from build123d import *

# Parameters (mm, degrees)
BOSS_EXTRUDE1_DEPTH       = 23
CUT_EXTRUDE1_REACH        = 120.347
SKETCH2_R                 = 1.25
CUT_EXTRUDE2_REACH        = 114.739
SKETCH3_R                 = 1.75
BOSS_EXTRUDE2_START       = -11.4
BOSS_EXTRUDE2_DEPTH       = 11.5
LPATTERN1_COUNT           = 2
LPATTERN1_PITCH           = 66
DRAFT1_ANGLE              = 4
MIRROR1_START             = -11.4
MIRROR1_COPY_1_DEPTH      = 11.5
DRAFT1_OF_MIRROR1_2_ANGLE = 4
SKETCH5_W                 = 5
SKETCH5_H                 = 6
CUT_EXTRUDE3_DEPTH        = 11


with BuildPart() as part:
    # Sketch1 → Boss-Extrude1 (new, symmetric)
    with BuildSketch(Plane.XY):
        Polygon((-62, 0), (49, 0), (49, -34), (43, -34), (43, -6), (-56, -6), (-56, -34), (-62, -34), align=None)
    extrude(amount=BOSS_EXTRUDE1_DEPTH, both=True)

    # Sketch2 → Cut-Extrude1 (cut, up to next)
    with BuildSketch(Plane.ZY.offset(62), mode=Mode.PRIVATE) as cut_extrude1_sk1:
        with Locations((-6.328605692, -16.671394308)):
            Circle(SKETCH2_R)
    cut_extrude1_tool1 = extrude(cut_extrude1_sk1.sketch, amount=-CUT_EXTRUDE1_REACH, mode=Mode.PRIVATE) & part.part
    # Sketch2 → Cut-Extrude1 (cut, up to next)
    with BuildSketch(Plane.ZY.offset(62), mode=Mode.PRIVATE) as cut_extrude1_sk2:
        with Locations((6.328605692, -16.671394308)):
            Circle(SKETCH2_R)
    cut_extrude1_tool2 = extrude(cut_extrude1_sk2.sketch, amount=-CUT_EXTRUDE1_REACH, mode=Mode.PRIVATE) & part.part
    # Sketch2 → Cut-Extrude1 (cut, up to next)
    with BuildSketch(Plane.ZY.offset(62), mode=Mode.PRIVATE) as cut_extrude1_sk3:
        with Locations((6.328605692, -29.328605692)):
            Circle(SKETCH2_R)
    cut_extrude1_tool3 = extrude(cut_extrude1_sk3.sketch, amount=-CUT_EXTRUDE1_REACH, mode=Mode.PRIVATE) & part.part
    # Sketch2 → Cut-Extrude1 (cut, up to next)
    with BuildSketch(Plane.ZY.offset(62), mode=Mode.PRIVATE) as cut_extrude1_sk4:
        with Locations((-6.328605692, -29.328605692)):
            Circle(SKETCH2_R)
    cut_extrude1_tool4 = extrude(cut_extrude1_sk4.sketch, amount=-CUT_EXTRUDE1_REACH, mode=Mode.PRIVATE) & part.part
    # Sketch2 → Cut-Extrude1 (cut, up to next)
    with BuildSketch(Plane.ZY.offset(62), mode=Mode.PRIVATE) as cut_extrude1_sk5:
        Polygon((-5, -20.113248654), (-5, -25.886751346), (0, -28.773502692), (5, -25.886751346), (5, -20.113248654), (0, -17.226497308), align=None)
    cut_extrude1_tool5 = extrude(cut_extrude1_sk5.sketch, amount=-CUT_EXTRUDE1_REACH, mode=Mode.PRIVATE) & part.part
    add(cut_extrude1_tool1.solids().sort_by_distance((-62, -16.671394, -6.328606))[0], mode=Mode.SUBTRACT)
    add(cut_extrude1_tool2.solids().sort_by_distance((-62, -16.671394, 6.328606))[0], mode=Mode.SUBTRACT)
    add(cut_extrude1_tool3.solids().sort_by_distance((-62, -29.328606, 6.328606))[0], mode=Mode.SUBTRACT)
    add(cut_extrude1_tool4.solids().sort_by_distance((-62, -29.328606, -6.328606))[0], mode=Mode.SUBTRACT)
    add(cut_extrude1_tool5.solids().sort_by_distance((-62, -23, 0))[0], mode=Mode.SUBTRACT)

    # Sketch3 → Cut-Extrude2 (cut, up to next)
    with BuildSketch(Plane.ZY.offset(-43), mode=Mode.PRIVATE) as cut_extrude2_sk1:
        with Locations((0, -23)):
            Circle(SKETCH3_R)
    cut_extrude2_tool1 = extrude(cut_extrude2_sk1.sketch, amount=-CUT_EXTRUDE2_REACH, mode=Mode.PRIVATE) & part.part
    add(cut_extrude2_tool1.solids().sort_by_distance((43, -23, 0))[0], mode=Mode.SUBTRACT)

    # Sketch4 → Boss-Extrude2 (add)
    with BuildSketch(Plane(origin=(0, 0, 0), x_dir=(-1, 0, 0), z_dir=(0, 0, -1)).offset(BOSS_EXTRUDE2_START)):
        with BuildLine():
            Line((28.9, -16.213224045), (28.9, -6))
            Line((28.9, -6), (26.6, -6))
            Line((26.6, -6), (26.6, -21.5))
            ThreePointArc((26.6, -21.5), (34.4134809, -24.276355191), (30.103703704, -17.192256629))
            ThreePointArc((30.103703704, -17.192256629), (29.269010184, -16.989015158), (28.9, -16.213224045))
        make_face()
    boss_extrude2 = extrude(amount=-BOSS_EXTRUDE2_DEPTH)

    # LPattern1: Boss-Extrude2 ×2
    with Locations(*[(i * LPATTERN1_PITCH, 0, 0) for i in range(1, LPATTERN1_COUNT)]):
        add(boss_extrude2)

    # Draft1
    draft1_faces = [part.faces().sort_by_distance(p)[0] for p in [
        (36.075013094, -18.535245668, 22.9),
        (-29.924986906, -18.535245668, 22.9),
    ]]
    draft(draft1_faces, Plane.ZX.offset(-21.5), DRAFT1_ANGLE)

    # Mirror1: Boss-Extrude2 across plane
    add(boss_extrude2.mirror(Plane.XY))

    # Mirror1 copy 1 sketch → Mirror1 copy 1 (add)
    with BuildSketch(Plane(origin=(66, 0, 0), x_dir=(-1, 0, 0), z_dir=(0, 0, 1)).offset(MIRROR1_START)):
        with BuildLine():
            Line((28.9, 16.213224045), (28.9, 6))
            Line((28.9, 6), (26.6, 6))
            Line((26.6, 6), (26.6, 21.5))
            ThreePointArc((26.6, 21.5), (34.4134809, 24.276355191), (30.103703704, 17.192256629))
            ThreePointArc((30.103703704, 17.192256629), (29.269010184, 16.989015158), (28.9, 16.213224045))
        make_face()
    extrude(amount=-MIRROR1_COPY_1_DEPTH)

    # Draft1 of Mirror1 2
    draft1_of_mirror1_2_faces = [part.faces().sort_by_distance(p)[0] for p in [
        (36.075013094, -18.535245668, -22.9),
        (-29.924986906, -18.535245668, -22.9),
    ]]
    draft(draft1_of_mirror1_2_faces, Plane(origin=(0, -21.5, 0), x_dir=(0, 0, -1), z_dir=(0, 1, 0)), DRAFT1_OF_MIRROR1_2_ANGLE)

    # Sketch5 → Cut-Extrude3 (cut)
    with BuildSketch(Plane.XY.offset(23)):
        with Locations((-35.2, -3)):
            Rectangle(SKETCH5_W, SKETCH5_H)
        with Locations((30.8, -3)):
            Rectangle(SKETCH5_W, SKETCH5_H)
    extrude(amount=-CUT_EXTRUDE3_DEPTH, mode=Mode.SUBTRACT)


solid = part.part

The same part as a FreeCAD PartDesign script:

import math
import FreeCAD as App
import Part
import Sketcher
Q = App.Units.Quantity


def faces_at(feature, points):
    """Names of the faces that lie closest to the given points."""
    faces = feature.Shape.Faces
    near = lambda p: min(range(len(faces)), key=lambda i: faces[i].distToShape(Part.Vertex(*p))[0])
    return sorted({f"Face{near(p) + 1}" for p in points})


def add_polygon(sketch, points):
    """Adds a closed chain of lines whose ends are joined by coincident constraints."""
    first, n = sketch.GeometryCount, len(points)
    for a, b in zip(points, points[1:] + points[:1]):
        sketch.addGeometry(Part.LineSegment(App.Vector(*a, 0), App.Vector(*b, 0)), False)
    for i in range(n):
        sketch.addConstraint(Sketcher.Constraint("Coincident", first + i, 2, first + (i + 1) % n, 1))

doc = App.newDocument("Part")
params = doc.addObject("Spreadsheet::Sheet", "Params")
for row, (alias, value) in enumerate([
    ("sketch1_width", "111 mm"),
    ("sketch1_width2", "6 mm"),
    ("sketch1_height", "34 mm"),
    ("sketch1_height2", "28 mm"),
    ("pad1_length", "46 mm"),
    ("sketch2_diameter", "2.5 mm"),
    ("sketch3_diameter", "2.5 mm"),
    ("sketch4_diameter", "2.5 mm"),
    ("sketch5_diameter", "2.5 mm"),
    ("sketch7_diameter", "3.5 mm"),
    ("sketch8_radius", "1 mm"),
    ("sketch8_radius2", "4.4 mm"),
    ("sketch8_width", "2.3 mm"),
    ("sketch8_height", "15.5 mm"),
    ("pad2_length", "11.5 mm"),
    ("linearpattern_pitch", "66 mm"),
    ("draft_angle", "4 deg"),
    ("sketch9_radius", "1 mm"),
    ("sketch9_radius2", "4.4 mm"),
    ("sketch9_width", "2.3 mm"),
    ("sketch9_height", "15.5 mm"),
    ("pad3_length", "11.5 mm"),
    ("draft2_angle", "4 deg"),
    ("sketch10_width", "5 mm"),
    ("sketch10_height", "6 mm"),
    ("pocket7_length", "11 mm"),
], start=1):
    params.set(f"A{row}", alias)
    params.set(f"B{row}", "=" + value)
    params.setAlias(f"B{row}", alias)

body = doc.addObject("PartDesign::Body", "Body")

# Sketch on XY plane
sketch1 = body.newObject("Sketcher::SketchObject", "Sketch")
sketch1.AttachmentSupport = (doc.getObject("XY_Plane"), [""])
sketch1.MapMode = "FlatFace"
add_polygon(sketch1, [(49, 0), (-62, 0), (-62, -34), (-56, -34), (-56, -6), (43, -6), (43, -34), (49, -34)])  # lines 0-7
sketch1.addConstraint([
    Sketcher.Constraint("Horizontal", 0),
    Sketcher.Constraint("Vertical", 1),
    Sketcher.Constraint("Horizontal", 2),
    Sketcher.Constraint("Vertical", 3),
    Sketcher.Constraint("Horizontal", 4),
    Sketcher.Constraint("Vertical", 5),
    Sketcher.Constraint("Horizontal", 6),
    Sketcher.Constraint("Vertical", 7),
    Sketcher.Constraint("PointOnObject", 0, 2, -1),
    Sketcher.Constraint("Horizontal", 2, 2, 5, 2),
    Sketcher.Constraint("Equal", 2, 6),
    Sketcher.Constraint("DistanceX", 0, 2, 0, 1, Q("111 mm")),
    Sketcher.Constraint("DistanceX", 2, 1, 2, 2, Q("6 mm")),
    Sketcher.Constraint("DistanceY", 1, 2, 1, 1, Q("34 mm")),
    Sketcher.Constraint("DistanceY", 3, 1, 3, 2, Q("28 mm")),
    Sketcher.Constraint("DistanceX", 0, 2, -1, 1, Q("62 mm")),
])
sketch1.setExpression("Constraints[19]", "Params.sketch1_width")
sketch1.setExpression("Constraints[20]", "Params.sketch1_width2")
sketch1.setExpression("Constraints[21]", "Params.sketch1_height")
sketch1.setExpression("Constraints[22]", "Params.sketch1_height2")
pad1 = body.newObject("PartDesign::Pad", "Pad")
pad1.Profile = sketch1
pad1.setExpression("Length", "Params.pad1_length")
pad1.Midplane = True

# Sketch on YZ plane
sketch2 = body.newObject("Sketcher::SketchObject", "Sketch001")
sketch2.AttachmentSupport = (doc.getObject("YZ_Plane"), [""])
sketch2.MapMode = "FlatFace"
sketch2.AttachmentOffset = App.Placement(App.Vector(0, 0, -62), App.Rotation())
sketch2.addGeometry(Part.Circle(App.Vector(-16.7, -6.3, 0), App.Vector(0, 0, 1), 1.2), False)
sketch2.addConstraint([
    Sketcher.Constraint("Diameter", 0, Q("2.5 mm")),
    Sketcher.Constraint("DistanceX", 0, 3, -1, 1, Q("16.671394 mm")),
    Sketcher.Constraint("DistanceY", 0, 3, -1, 1, Q("6.328606 mm")),
])
sketch2.setExpression("Constraints[0]", "Params.sketch2_diameter")
pocket1 = body.newObject("PartDesign::Pocket", "Pocket")
pocket1.Profile = sketch2
pocket1.Type = "UpToFirst"
pocket1.Reversed = True

# Sketch on YZ plane
sketch3 = body.newObject("Sketcher::SketchObject", "Sketch002")
sketch3.AttachmentSupport = (doc.getObject("YZ_Plane"), [""])
sketch3.MapMode = "FlatFace"
sketch3.AttachmentOffset = App.Placement(App.Vector(0, 0, -62), App.Rotation())
sketch3.addGeometry(Part.Circle(App.Vector(-16.7, 6.3, 0), App.Vector(0, 0, 1), 1.2), False)
sketch3.addConstraint([
    Sketcher.Constraint("Diameter", 0, Q("2.5 mm")),
    Sketcher.Constraint("DistanceX", 0, 3, -1, 1, Q("16.671394 mm")),
    Sketcher.Constraint("DistanceY", -1, 1, 0, 3, Q("6.328606 mm")),
])
sketch3.setExpression("Constraints[0]", "Params.sketch3_diameter")
pocket2 = body.newObject("PartDesign::Pocket", "Pocket001")
pocket2.Profile = sketch3
pocket2.Type = "UpToFirst"
pocket2.Reversed = True

# Sketch on YZ plane
sketch4 = body.newObject("Sketcher::SketchObject", "Sketch003")
sketch4.AttachmentSupport = (doc.getObject("YZ_Plane"), [""])
sketch4.MapMode = "FlatFace"
sketch4.AttachmentOffset = App.Placement(App.Vector(0, 0, -62), App.Rotation())
sketch4.addGeometry(Part.Circle(App.Vector(-29.3, 6.3, 0), App.Vector(0, 0, 1), 1.2), False)
sketch4.addConstraint([
    Sketcher.Constraint("Diameter", 0, Q("2.5 mm")),
    Sketcher.Constraint("DistanceX", 0, 3, -1, 1, Q("29.328606 mm")),
    Sketcher.Constraint("DistanceY", -1, 1, 0, 3, Q("6.328606 mm")),
])
sketch4.setExpression("Constraints[0]", "Params.sketch4_diameter")
pocket3 = body.newObject("PartDesign::Pocket", "Pocket002")
pocket3.Profile = sketch4
pocket3.Type = "UpToFirst"
pocket3.Reversed = True

# Sketch on YZ plane
sketch5 = body.newObject("Sketcher::SketchObject", "Sketch004")
sketch5.AttachmentSupport = (doc.getObject("YZ_Plane"), [""])
sketch5.MapMode = "FlatFace"
sketch5.AttachmentOffset = App.Placement(App.Vector(0, 0, -62), App.Rotation())
sketch5.addGeometry(Part.Circle(App.Vector(-29.3, -6.3, 0), App.Vector(0, 0, 1), 1.2), False)
sketch5.addConstraint([
    Sketcher.Constraint("Diameter", 0, Q("2.5 mm")),
    Sketcher.Constraint("DistanceX", 0, 3, -1, 1, Q("29.328606 mm")),
    Sketcher.Constraint("DistanceY", 0, 3, -1, 1, Q("6.328606 mm")),
])
sketch5.setExpression("Constraints[0]", "Params.sketch5_diameter")
pocket4 = body.newObject("PartDesign::Pocket", "Pocket003")
pocket4.Profile = sketch5
pocket4.Type = "UpToFirst"
pocket4.Reversed = True

# Sketch on YZ plane
sketch6 = body.newObject("Sketcher::SketchObject", "Sketch005")
sketch6.AttachmentSupport = (doc.getObject("YZ_Plane"), [""])
sketch6.MapMode = "FlatFace"
sketch6.AttachmentOffset = App.Placement(App.Vector(0, 0, -62), App.Rotation())
add_polygon(sketch6, [(-20, -5), (-26, -5), (-29, 0), (-26, 5), (-20, 5), (-17, 0)])  # lines 0-5
sketch6.addConstraint([
    Sketcher.Constraint("Horizontal", 0),
    Sketcher.Constraint("Horizontal", 3),
    Sketcher.Constraint("Symmetric", 0, 2, 2, 2, -1),
    Sketcher.Constraint("PointOnObject", 1, 2, -1),
    Sketcher.Constraint("PointOnObject", 4, 2, -1),
    Sketcher.Constraint("Parallel", 1, 4),
    Sketcher.Constraint("Parallel", 2, 5),
    Sketcher.Constraint("Angle", 1, Q("120 deg")),
    Sketcher.Constraint("DistanceY", 0, 2, -1, 1, Q("5 mm")),
    Sketcher.Constraint("DistanceX", 0, 2, 0, 1, Q("5.773503 mm")),
    Sketcher.Constraint("DistanceX", 0, 2, -1, 1, Q("25.886751 mm")),
])
pocket5 = body.newObject("PartDesign::Pocket", "Pocket004")
pocket5.Profile = sketch6
pocket5.Type = "UpToFirst"
pocket5.Reversed = True

# Sketch on YZ plane
sketch7 = body.newObject("Sketcher::SketchObject", "Sketch006")
sketch7.AttachmentSupport = (doc.getObject("YZ_Plane"), [""])
sketch7.MapMode = "FlatFace"
sketch7.AttachmentOffset = App.Placement(App.Vector(0, 0, 43), App.Rotation())
sketch7.addGeometry(Part.Circle(App.Vector(-23, 0, 0), App.Vector(0, 0, 1), 1.8), False)
sketch7.addConstraint([
    Sketcher.Constraint("PointOnObject", 0, 3, -1),
    Sketcher.Constraint("Diameter", 0, Q("3.5 mm")),
    Sketcher.Constraint("DistanceX", 0, 3, -1, 1, Q("23 mm")),
])
sketch7.setExpression("Constraints[1]", "Params.sketch7_diameter")
pocket6 = body.newObject("PartDesign::Pocket", "Pocket005")
pocket6.Profile = sketch7
pocket6.Type = "UpToFirst"
pocket6.Reversed = True

# Sketch on XY plane
sketch8 = body.newObject("Sketcher::SketchObject", "Sketch007")
sketch8.AttachmentSupport = (doc.getObject("XY_Plane"), [""])
sketch8.MapMode = "FlatFace"
sketch8.AttachmentOffset = App.Placement(App.Vector(0, 0, 11.4), App.Rotation())
sketch8.addGeometry([
    Part.LineSegment(App.Vector(-28.9, -16.2, 0), App.Vector(-28.9, -6, 0)),  # 0
    Part.LineSegment(App.Vector(-28.9, -6, 0), App.Vector(-26.6, -6, 0)),  # 1
    Part.LineSegment(App.Vector(-26.6, -6, 0), App.Vector(-26.6, -21.5, 0)),  # 2
    Part.ArcOfCircle(Part.Circle(App.Vector(-31, -21.5, 0), App.Vector(0, 0, 1), 4.4), math.radians(78), math.radians(360)),  # 3
    Part.ArcOfCircle(Part.Circle(App.Vector(-29.9, -16.2, 0), App.Vector(0, 0, 1), 1), math.radians(-102), math.radians(0)),  # 4
], False)
sketch8.addConstraint([
    Sketcher.Constraint("Coincident", 0, 2, 1, 1),
    Sketcher.Constraint("Coincident", 1, 2, 2, 1),
    Sketcher.Constraint("Tangent", 2, 2, 3, 2),
    Sketcher.Constraint("Tangent", 3, 1, 4, 1),
    Sketcher.Constraint("Tangent", 4, 2, 0, 1),
    Sketcher.Constraint("Vertical", 0),
    Sketcher.Constraint("Horizontal", 1),
    Sketcher.Constraint("Vertical", 2),
    Sketcher.Constraint("Radius", 4, Q("1 mm")),
    Sketcher.Constraint("Radius", 3, Q("4.4 mm")),
    Sketcher.Constraint("DistanceX", 1, 1, 1, 2, Q("2.3 mm")),
    Sketcher.Constraint("DistanceY", 2, 2, 2, 1, Q("15.5 mm")),
    Sketcher.Constraint("DistanceX", 3, 3, -1, 1, Q("31 mm")),
    Sketcher.Constraint("DistanceY", 0, 2, -1, 1, Q("6 mm")),
])
sketch8.setExpression("Constraints[8]", "Params.sketch8_radius")
sketch8.setExpression("Constraints[9]", "Params.sketch8_radius2")
sketch8.setExpression("Constraints[10]", "Params.sketch8_width")
sketch8.setExpression("Constraints[11]", "Params.sketch8_height")
pad2 = body.newObject("PartDesign::Pad", "Pad001")
pad2.Profile = sketch8
pad2.setExpression("Length", "Params.pad2_length")
doc.recompute()

linearpattern = body.newObject("PartDesign::LinearPattern", "LinearPattern")
linearpattern.Originals = [pad2]
linearpattern.Direction = (doc.getObject("X_Axis"), [""])
linearpattern.Mode = "offset"
linearpattern.setExpression("Offset", "Params.linearpattern_pitch")
linearpattern.Occurrences = 2
body.Tip = linearpattern
doc.recompute()

datumplane = body.newObject("PartDesign::Plane", "DatumPlane")
datumplane.AttachmentSupport = (doc.getObject("XZ_Plane"), [""])
datumplane.MapMode = "FlatFace"
datumplane.AttachmentOffset = App.Placement(App.Vector(0, 0, 21.5), App.Rotation())
draft = body.newObject("PartDesign::Draft", "Draft")
draft.Base = (linearpattern, faces_at(linearpattern, [(36.76, -19.93, 22.9), (-29.24, -19.93, 22.9)]))
draft.NeutralPlane = (datumplane, [""])
draft.setExpression("Angle", "Params.draft_angle")
draft.Reversed = True
doc.recompute()

mirrored = body.newObject("PartDesign::Mirrored", "Mirrored")
mirrored.Originals = [pad2]
mirrored.MirrorPlane = (doc.getObject("XY_Plane"), [""])
body.Tip = mirrored

# Sketch on XY plane
sketch9 = body.newObject("Sketcher::SketchObject", "Sketch008")
sketch9.AttachmentSupport = (doc.getObject("XY_Plane"), [""])
sketch9.MapMode = "FlatFace"
sketch9.AttachmentOffset = App.Placement(App.Vector(0, 0, -11.4), App.Rotation())
sketch9.addGeometry([
    Part.LineSegment(App.Vector(37.1, -6, 0), App.Vector(37.1, -16.2, 0)),  # 0
    Part.ArcOfCircle(Part.Circle(App.Vector(36.1, -16.2, 0), App.Vector(0, 0, 1), 1), math.radians(-102), math.radians(0)),  # 1
    Part.ArcOfCircle(Part.Circle(App.Vector(35, -21.5, 0), App.Vector(0, 0, 1), 4.4), math.radians(78), math.radians(360)),  # 2
    Part.LineSegment(App.Vector(39.4, -21.5, 0), App.Vector(39.4, -6, 0)),  # 3
    Part.LineSegment(App.Vector(39.4, -6, 0), App.Vector(37.1, -6, 0)),  # 4
], False)
sketch9.addConstraint([
    Sketcher.Constraint("Tangent", 0, 2, 1, 2),
    Sketcher.Constraint("Tangent", 1, 1, 2, 1),
    Sketcher.Constraint("Tangent", 2, 2, 3, 1),
    Sketcher.Constraint("Coincident", 3, 2, 4, 1),
    Sketcher.Constraint("Coincident", 4, 2, 0, 1),
    Sketcher.Constraint("Vertical", 0),
    Sketcher.Constraint("Vertical", 3),
    Sketcher.Constraint("Horizontal", 4),
    Sketcher.Constraint("Radius", 1, Q("1 mm")),
    Sketcher.Constraint("Radius", 2, Q("4.4 mm")),
    Sketcher.Constraint("DistanceX", 4, 2, 4, 1, Q("2.3 mm")),
    Sketcher.Constraint("DistanceY", 3, 1, 3, 2, Q("15.5 mm")),
    Sketcher.Constraint("DistanceX", -1, 1, 2, 3, Q("35 mm")),
    Sketcher.Constraint("DistanceY", 3, 2, -1, 1, Q("6 mm")),
])
sketch9.setExpression("Constraints[8]", "Params.sketch9_radius")
sketch9.setExpression("Constraints[9]", "Params.sketch9_radius2")
sketch9.setExpression("Constraints[10]", "Params.sketch9_width")
sketch9.setExpression("Constraints[11]", "Params.sketch9_height")
pad3 = body.newObject("PartDesign::Pad", "Pad002")
pad3.Profile = sketch9
pad3.setExpression("Length", "Params.pad3_length")
pad3.Reversed = True
doc.recompute()

datumplane2 = body.newObject("PartDesign::Plane", "DatumPlane001")
datumplane2.AttachmentSupport = (doc.getObject("XZ_Plane"), [""])
datumplane2.MapMode = "FlatFace"
datumplane2.AttachmentOffset = App.Placement(App.Vector(0, 0, 21.5), App.Rotation())
draft2 = body.newObject("PartDesign::Draft", "Draft001")
draft2.Base = (pad3, faces_at(pad3, [(38.52, -15.95, -22.9), (-29.24, -19.93, -22.9)]))
draft2.NeutralPlane = (datumplane2, [""])
draft2.setExpression("Angle", "Params.draft2_angle")
draft2.Reversed = True

# Sketch on XY plane
sketch10 = body.newObject("Sketcher::SketchObject", "Sketch009")
sketch10.AttachmentSupport = (doc.getObject("XY_Plane"), [""])
sketch10.MapMode = "FlatFace"
sketch10.AttachmentOffset = App.Placement(App.Vector(0, 0, 23), App.Rotation())
add_polygon(sketch10, [(-37.7, 0), (-37.7, -6), (-32.7, -6), (-32.7, 0)])  # lines 0-3
add_polygon(sketch10, [(28.3, 0), (28.3, -6), (33.3, -6), (33.3, 0)])  # lines 4-7
sketch10.addConstraint([
    Sketcher.Constraint("Vertical", 0),
    Sketcher.Constraint("Horizontal", 1),
    Sketcher.Constraint("Vertical", 2),
    Sketcher.Constraint("Horizontal", 3),
    Sketcher.Constraint("Vertical", 4),
    Sketcher.Constraint("Horizontal", 5),
    Sketcher.Constraint("Vertical", 6),
    Sketcher.Constraint("Horizontal", 7),
    Sketcher.Constraint("PointOnObject", 2, 2, -1),
    Sketcher.Constraint("PointOnObject", 6, 2, -1),
    Sketcher.Constraint("Horizontal", 1, 2, 4, 2),
    Sketcher.Constraint("Equal", 3, 5),
    Sketcher.Constraint("DistanceX", 1, 1, 1, 2, Q("5 mm")),
    Sketcher.Constraint("DistanceY", 0, 2, 0, 1, Q("6 mm")),
    Sketcher.Constraint("DistanceX", 1, 2, 4, 2, Q("61 mm")),
    Sketcher.Constraint("DistanceX", 0, 2, -1, 1, Q("37.7 mm")),
])
sketch10.setExpression("Constraints[20]", "Params.sketch10_width")
sketch10.setExpression("Constraints[21]", "Params.sketch10_height")
pocket7 = body.newObject("PartDesign::Pocket", "Pocket006")
pocket7.Profile = sketch10
pocket7.setExpression("Length", "Params.pocket7_length")

doc.recompute()
